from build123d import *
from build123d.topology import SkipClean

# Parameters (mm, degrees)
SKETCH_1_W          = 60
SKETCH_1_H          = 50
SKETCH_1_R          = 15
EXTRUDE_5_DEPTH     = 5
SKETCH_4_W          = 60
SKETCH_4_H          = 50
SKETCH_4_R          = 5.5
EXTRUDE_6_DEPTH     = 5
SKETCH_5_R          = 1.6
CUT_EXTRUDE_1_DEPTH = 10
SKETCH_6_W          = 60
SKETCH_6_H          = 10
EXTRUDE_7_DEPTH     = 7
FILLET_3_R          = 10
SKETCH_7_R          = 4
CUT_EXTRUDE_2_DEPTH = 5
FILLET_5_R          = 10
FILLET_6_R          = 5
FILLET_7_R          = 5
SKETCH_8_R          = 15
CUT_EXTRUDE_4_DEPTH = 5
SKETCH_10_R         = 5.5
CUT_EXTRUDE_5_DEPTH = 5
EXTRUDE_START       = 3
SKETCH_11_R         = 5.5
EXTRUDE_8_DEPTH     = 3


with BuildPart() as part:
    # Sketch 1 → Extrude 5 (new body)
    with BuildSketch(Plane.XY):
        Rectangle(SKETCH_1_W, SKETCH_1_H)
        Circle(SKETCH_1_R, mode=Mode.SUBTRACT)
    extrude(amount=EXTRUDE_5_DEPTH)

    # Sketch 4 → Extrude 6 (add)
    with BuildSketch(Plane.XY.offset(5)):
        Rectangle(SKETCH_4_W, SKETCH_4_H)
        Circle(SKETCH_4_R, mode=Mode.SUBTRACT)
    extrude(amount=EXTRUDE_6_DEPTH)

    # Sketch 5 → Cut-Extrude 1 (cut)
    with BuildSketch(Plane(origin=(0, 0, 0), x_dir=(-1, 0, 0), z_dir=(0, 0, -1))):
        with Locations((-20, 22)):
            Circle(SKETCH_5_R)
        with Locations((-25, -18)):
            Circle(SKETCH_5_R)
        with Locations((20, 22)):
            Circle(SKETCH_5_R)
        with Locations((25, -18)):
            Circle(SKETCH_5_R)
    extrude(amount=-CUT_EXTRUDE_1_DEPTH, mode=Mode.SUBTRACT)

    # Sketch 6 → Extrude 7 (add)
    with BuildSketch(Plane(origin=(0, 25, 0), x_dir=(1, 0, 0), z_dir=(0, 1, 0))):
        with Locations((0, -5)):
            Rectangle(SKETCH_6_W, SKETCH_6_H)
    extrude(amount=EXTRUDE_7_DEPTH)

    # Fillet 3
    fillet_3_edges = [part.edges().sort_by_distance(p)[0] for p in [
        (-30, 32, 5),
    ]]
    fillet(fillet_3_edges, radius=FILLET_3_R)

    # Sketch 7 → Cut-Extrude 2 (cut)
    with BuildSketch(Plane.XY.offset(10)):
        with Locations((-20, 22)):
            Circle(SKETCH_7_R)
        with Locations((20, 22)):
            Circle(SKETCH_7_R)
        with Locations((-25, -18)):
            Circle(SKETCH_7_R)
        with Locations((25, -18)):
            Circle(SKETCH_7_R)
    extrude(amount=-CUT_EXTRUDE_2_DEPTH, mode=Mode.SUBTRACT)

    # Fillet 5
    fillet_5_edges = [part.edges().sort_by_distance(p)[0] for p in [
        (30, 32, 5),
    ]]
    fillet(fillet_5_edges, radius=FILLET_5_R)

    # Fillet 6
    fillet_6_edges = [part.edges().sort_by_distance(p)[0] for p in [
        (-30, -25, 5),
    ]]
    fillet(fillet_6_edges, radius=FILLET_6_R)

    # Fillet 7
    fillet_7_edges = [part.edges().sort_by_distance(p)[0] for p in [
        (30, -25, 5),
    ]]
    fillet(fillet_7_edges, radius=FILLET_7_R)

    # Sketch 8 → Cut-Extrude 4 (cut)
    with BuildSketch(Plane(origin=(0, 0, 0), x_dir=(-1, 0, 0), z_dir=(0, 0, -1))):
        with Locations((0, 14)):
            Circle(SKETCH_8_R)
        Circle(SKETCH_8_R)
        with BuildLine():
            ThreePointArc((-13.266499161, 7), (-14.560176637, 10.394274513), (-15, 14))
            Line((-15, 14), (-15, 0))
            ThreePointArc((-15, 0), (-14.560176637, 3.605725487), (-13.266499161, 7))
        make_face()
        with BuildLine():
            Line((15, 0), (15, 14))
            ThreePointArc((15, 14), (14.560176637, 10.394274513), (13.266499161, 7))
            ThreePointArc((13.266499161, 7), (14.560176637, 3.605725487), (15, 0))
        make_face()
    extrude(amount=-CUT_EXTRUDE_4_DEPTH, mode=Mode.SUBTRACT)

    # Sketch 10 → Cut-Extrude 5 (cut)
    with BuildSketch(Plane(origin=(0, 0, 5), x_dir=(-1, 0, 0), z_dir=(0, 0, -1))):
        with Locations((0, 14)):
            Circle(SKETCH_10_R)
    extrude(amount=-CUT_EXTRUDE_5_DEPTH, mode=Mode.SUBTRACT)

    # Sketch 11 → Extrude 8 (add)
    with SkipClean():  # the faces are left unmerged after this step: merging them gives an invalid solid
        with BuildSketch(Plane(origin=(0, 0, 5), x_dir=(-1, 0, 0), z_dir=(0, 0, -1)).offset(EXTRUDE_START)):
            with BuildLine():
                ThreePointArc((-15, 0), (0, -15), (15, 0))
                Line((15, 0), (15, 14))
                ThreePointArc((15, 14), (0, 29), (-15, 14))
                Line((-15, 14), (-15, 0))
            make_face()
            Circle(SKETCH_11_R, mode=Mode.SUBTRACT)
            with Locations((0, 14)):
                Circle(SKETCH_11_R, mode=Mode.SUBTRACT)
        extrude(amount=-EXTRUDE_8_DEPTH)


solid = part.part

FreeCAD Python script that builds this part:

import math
import FreeCAD as App
import Part
import Sketcher


def edges_at(feature, points):
    """Names of the edges that pass closest to the given points."""
    edges = feature.Shape.Edges
    near = lambda p: min(range(len(edges)), key=lambda i: edges[i].distToShape(Part.Vertex(*p))[0])
    return sorted({f"Edge{near(p) + 1}" for p in points})


def add_polygon(sketch, points):
    """Adds a closed chain of lines whose ends are joined by coincident constraints."""
    first, n = sketch.GeometryCount, len(points)
    for a, b in zip(points, points[1:] + points[:1]):
        sketch.addGeometry(Part.LineSegment(App.Vector(*a, 0), App.Vector(*b, 0)), False)
    for i in range(n):
        sketch.addConstraint(Sketcher.Constraint("Coincident", first + i, 2, first + (i + 1) % n, 1))

doc = App.newDocument("Part")
body = doc.addObject("PartDesign::Body", "Body")

sketch1 = doc.addObject("Sketcher::SketchObject", "Sketch")
body.addObject(sketch1)
sketch1.AttachmentSupport = (doc.XY_Plane, [""])
sketch1.MapMode = "FlatFace"
add_polygon(sketch1, [(-30, 25), (-30, -25), (30, -25), (30, 25)])
sketch1.addGeometry(Part.Circle(App.Vector(0, 0, 0), App.Vector(0, 0, 1), 15), False)
sketch1.addConstraint([
    Sketcher.Constraint("Vertical", 0),
    Sketcher.Constraint("Horizontal", 1),
    Sketcher.Constraint("Vertical", 2),
    Sketcher.Constraint("Horizontal", 3),
    Sketcher.Constraint("Coincident", 4, 3, -1, 1),
    Sketcher.Constraint("Symmetric", 0, 2, 2, 2, -1, 1),
    Sketcher.Constraint("Diameter", 4, 30.0),
    Sketcher.Constraint("DistanceX", 1, 1, 1, 2, 60.0),
    Sketcher.Constraint("DistanceY", 0, 2, 0, 1, 50.0),
])
pad1 = doc.addObject("PartDesign::Pad", "Pad")
body.addObject(pad1)
pad1.Profile = sketch1
pad1.Length = 5

sketch2 = doc.addObject("Sketcher::SketchObject", "Sketch001")
body.addObject(sketch2)
sketch2.AttachmentSupport = (doc.XY_Plane, [""])
sketch2.MapMode = "FlatFace"
sketch2.AttachmentOffset = App.Placement(App.Vector(0, 0, 5), App.Rotation())
add_polygon(sketch2, [(-30, 25), (-30, -25), (30, -25), (30, 25)])
sketch2.addGeometry(Part.Circle(App.Vector(0, 0, 0), App.Vector(0, 0, 1), 5.5), False)
sketch2.addConstraint([
    Sketcher.Constraint("Vertical", 0),
    Sketcher.Constraint("Horizontal", 1),
    Sketcher.Constraint("Vertical", 2),
    Sketcher.Constraint("Horizontal", 3),
    Sketcher.Constraint("Coincident", 4, 3, -1, 1),
    Sketcher.Constraint("Symmetric", 0, 2, 2, 2, -1, 1),
    Sketcher.Constraint("Diameter", 4, 11.0),
    Sketcher.Constraint("DistanceX", 1, 1, 1, 2, 60.0),
    Sketcher.Constraint("DistanceY", 0, 2, 0, 1, 50.0),
])
pad2 = doc.addObject("PartDesign::Pad", "Pad001")
body.addObject(pad2)
pad2.Profile = sketch2
pad2.Length = 5

sketch3 = doc.addObject("Sketcher::SketchObject", "Sketch002")
body.addObject(sketch3)
sketch3.AttachmentSupport = (doc.XY_Plane, [""])
sketch3.MapMode = "FlatFace"
sketch3.addGeometry([
    Part.Circle(App.Vector(20, 22, 0), App.Vector(0, 0, 1), 1.6),
    Part.Circle(App.Vector(25, -18, 0), App.Vector(0, 0, 1), 1.6),
    Part.Circle(App.Vector(-20, 22, 0), App.Vector(0, 0, 1), 1.6),
    Part.Circle(App.Vector(-25, -18, 0), App.Vector(0, 0, 1), 1.6),
], False)
sketch3.addConstraint([
    Sketcher.Constraint("Equal", 0, 1),
    Sketcher.Constraint("Equal", 1, 2),
    Sketcher.Constraint("Equal", 2, 3),
    Sketcher.Constraint("Symmetric", 0, 3, 2, 3, -2),
    Sketcher.Constraint("Symmetric", 1, 3, 3, 3, -2),
    Sketcher.Constraint("Diameter", 0, 3.2),
    Sketcher.Constraint("DistanceX", -1, 1, 0, 3, 20.0),
    Sketcher.Constraint("DistanceY", -1, 1, 0, 3, 22.0),
    Sketcher.Constraint("DistanceX", -1, 1, 1, 3, 25.0),
    Sketcher.Constraint("DistanceY", 1, 3, -1, 1, 18.0),
])
pocket1 = doc.addObject("PartDesign::Pocket", "Pocket")
body.addObject(pocket1)
pocket1.Profile = sketch3
pocket1.Length = 10
pocket1.Reversed = True

sketch4 = doc.addObject("Sketcher::SketchObject", "Sketch003")
body.addObject(sketch4)
sketch4.AttachmentSupport = (doc.XZ_Plane, [""])
sketch4.MapMode = "FlatFace"
sketch4.AttachmentOffset = App.Placement(App.Vector(0, 0, -25), App.Rotation())
add_polygon(sketch4, [(-30, 0), (-30, 10), (30, 10), (30, 0)])
sketch4.addConstraint([
    Sketcher.Constraint("Vertical", 0),
    Sketcher.Constraint("Horizontal", 1),
    Sketcher.Constraint("Vertical", 2),
    Sketcher.Constraint("Horizontal", 3),
    Sketcher.Constraint("Symmetric", 2, 2, 3, 2, -1, 1),
    Sketcher.Constraint("DistanceX", 1, 1, 1, 2, 60.0),
    Sketcher.Constraint("DistanceY", 0, 1, 0, 2, 10.0),
])
pad3 = doc.addObject("PartDesign::Pad", "Pad002")
body.addObject(pad3)
pad3.Profile = sketch4
pad3.Length = 7
pad3.Reversed = True
doc.recompute()

fillet = doc.addObject("PartDesign::Fillet", "Fillet")
body.addObject(fillet)
fillet.Base = (pad3, edges_at(pad3, [(-30, 32, 5)]))
fillet.Radius = 10

sketch5 = doc.addObject("Sketcher::SketchObject", "Sketch004")
body.addObject(sketch5)
sketch5.AttachmentSupport = (doc.XY_Plane, [""])
sketch5.MapMode = "FlatFace"
sketch5.AttachmentOffset = App.Placement(App.Vector(0, 0, 10), App.Rotation())
sketch5.addGeometry([
    Part.Circle(App.Vector(-20, 22, 0), App.Vector(0, 0, 1), 4),
    Part.Circle(App.Vector(20, 22, 0), App.Vector(0, 0, 1), 4),
    Part.Circle(App.Vector(-25, -18, 0), App.Vector(0, 0, 1), 4),
    Part.Circle(App.Vector(25, -18, 0), App.Vector(0, 0, 1), 4),
], False)
sketch5.addConstraint([
    Sketcher.Constraint("Equal", 0, 1),
    Sketcher.Constraint("Equal", 1, 2),
    Sketcher.Constraint("Equal", 2, 3),
    Sketcher.Constraint("Symmetric", 0, 3, 1, 3, -2),
    Sketcher.Constraint("Symmetric", 2, 3, 3, 3, -2),
    Sketcher.Constraint("Diameter", 0, 8.0),
    Sketcher.Constraint("DistanceX", 0, 3, -1, 1, 20.0),
    Sketcher.Constraint("DistanceY", -1, 1, 0, 3, 22.0),
    Sketcher.Constraint("DistanceX", 2, 3, -1, 1, 25.0),
    Sketcher.Constraint("DistanceY", 2, 3, -1, 1, 18.0),
])
pocket2 = doc.addObject("PartDesign::Pocket", "Pocket001")
body.addObject(pocket2)
pocket2.Profile = sketch5
pocket2.Length = 5
doc.recompute()

fillet2 = doc.addObject("PartDesign::Fillet", "Fillet001")
body.addObject(fillet2)
fillet2.Base = (pocket2, edges_at(pocket2, [(30, 32, 5)]))
fillet2.Radius = 10
doc.recompute()

fillet3 = doc.addObject("PartDesign::Fillet", "Fillet002")
body.addObject(fillet3)
fillet3.Base = (fillet2, edges_at(fillet2, [(-30, -25, 5)]))
fillet3.Radius = 5
doc.recompute()

fillet4 = doc.addObject("PartDesign::Fillet", "Fillet003")
body.addObject(fillet4)
fillet4.Base = (fillet3, edges_at(fillet3, [(30, -25, 5)]))
fillet4.Radius = 5

sketch6 = doc.addObject("Sketcher::SketchObject", "Sketch005")
body.addObject(sketch6)
sketch6.AttachmentSupport = (doc.XY_Plane, [""])
sketch6.MapMode = "FlatFace"
sketch6.addGeometry([
    Part.ArcOfCircle(Part.Circle(App.Vector(0, 14, 0), App.Vector(0, 0, 1), 15), math.radians(0), math.radians(180)),
    Part.LineSegment(App.Vector(15, 14, 0), App.Vector(15, 0, 0)),
    Part.ArcOfCircle(Part.Circle(App.Vector(0, 0, 0), App.Vector(0, 0, 1), 15), math.radians(180), math.radians(360)),
    Part.LineSegment(App.Vector(-15, 0, 0), App.Vector(-15, 14, 0)),
], False)
sketch6.addConstraint([
    Sketcher.Constraint("Tangent", 0, 1, 1, 1),
    Sketcher.Constraint("Tangent", 1, 2, 2, 2),
    Sketcher.Constraint("Tangent", 2, 1, 3, 1),
    Sketcher.Constraint("Tangent", 3, 2, 0, 2),
    Sketcher.Constraint("Vertical", 1),
    Sketcher.Constraint("Vertical", 3),
    Sketcher.Constraint("Coincident", 2, 3, -1, 1),
    Sketcher.Constraint("Radius", 0, 15.0),
    Sketcher.Constraint("DistanceY", 1, 2, 1, 1, 14.0),
])
pocket3 = doc.addObject("PartDesign::Pocket", "Pocket002")
body.addObject(pocket3)
pocket3.Profile = sketch6
pocket3.Length = 5
pocket3.Reversed = True

sketch7 = doc.addObject("Sketcher::SketchObject", "Sketch006")
body.addObject(sketch7)
sketch7.AttachmentSupport = (doc.XY_Plane, [""])
sketch7.MapMode = "FlatFace"
sketch7.AttachmentOffset = App.Placement(App.Vector(0, 0, 5), App.Rotation())
sketch7.addGeometry(Part.Circle(App.Vector(0, 14, 0), App.Vector(0, 0, 1), 5.5), False)
sketch7.addConstraint([
    Sketcher.Constraint("PointOnObject", 0, 3, -2),
    Sketcher.Constraint("Diameter", 0, 11.0),
    Sketcher.Constraint("DistanceY", -1, 1, 0, 3, 14.0),
])
pocket4 = doc.addObject("PartDesign::Pocket", "Pocket003")
body.addObject(pocket4)
pocket4.Profile = sketch7
pocket4.Length = 5
pocket4.Reversed = True

sketch8 = doc.addObject("Sketcher::SketchObject", "Sketch007")
body.addObject(sketch8)
sketch8.AttachmentSupport = (doc.XY_Plane, [""])
sketch8.MapMode = "FlatFace"
sketch8.AttachmentOffset = App.Placement(App.Vector(0, 0, 2), App.Rotation())
sketch8.addGeometry([
    Part.ArcOfCircle(Part.Circle(App.Vector(0, 0, 0), App.Vector(0, 0, 1), 15), math.radians(180), math.radians(360)),
    Part.LineSegment(App.Vector(-15, 0, 0), App.Vector(-15, 14, 0)),
    Part.ArcOfCircle(Part.Circle(App.Vector(0, 14, 0), App.Vector(0, 0, 1), 15), math.radians(0), math.radians(180)),
    Part.LineSegment(App.Vector(15, 14, 0), App.Vector(15, 0, 0)),
    Part.Circle(App.Vector(0, 0, 0), App.Vector(0, 0, 1), 5.5),
    Part.Circle(App.Vector(0, 14, 0), App.Vector(0, 0, 1), 5.5),
], False)
sketch8.addConstraint([
    Sketcher.Constraint("Tangent", 0, 1, 1, 1),
    Sketcher.Constraint("Tangent", 1, 2, 2, 2),
    Sketcher.Constraint("Tangent", 2, 1, 3, 1),
    Sketcher.Constraint("Tangent", 3, 2, 0, 2),
    Sketcher.Constraint("Vertical", 1),
    Sketcher.Constraint("Vertical", 3),
    Sketcher.Constraint("Coincident", 0, 3, -1, 1),
    Sketcher.Constraint("Coincident", 4, 3, -1, 1),
    Sketcher.Constraint("Coincident", 5, 3, 2, 3),
    Sketcher.Constraint("Equal", 4, 5),
    Sketcher.Constraint("Diameter", 4, 11.0),
    Sketcher.Constraint("Radius", 0, 15.0),
    Sketcher.Constraint("DistanceY", 1, 1, 1, 2, 14.0),
])
pad4 = doc.addObject("PartDesign::Pad", "Pad003")
body.addObject(pad4)
pad4.Profile = sketch8
pad4.Length = 3

doc.recompute()
